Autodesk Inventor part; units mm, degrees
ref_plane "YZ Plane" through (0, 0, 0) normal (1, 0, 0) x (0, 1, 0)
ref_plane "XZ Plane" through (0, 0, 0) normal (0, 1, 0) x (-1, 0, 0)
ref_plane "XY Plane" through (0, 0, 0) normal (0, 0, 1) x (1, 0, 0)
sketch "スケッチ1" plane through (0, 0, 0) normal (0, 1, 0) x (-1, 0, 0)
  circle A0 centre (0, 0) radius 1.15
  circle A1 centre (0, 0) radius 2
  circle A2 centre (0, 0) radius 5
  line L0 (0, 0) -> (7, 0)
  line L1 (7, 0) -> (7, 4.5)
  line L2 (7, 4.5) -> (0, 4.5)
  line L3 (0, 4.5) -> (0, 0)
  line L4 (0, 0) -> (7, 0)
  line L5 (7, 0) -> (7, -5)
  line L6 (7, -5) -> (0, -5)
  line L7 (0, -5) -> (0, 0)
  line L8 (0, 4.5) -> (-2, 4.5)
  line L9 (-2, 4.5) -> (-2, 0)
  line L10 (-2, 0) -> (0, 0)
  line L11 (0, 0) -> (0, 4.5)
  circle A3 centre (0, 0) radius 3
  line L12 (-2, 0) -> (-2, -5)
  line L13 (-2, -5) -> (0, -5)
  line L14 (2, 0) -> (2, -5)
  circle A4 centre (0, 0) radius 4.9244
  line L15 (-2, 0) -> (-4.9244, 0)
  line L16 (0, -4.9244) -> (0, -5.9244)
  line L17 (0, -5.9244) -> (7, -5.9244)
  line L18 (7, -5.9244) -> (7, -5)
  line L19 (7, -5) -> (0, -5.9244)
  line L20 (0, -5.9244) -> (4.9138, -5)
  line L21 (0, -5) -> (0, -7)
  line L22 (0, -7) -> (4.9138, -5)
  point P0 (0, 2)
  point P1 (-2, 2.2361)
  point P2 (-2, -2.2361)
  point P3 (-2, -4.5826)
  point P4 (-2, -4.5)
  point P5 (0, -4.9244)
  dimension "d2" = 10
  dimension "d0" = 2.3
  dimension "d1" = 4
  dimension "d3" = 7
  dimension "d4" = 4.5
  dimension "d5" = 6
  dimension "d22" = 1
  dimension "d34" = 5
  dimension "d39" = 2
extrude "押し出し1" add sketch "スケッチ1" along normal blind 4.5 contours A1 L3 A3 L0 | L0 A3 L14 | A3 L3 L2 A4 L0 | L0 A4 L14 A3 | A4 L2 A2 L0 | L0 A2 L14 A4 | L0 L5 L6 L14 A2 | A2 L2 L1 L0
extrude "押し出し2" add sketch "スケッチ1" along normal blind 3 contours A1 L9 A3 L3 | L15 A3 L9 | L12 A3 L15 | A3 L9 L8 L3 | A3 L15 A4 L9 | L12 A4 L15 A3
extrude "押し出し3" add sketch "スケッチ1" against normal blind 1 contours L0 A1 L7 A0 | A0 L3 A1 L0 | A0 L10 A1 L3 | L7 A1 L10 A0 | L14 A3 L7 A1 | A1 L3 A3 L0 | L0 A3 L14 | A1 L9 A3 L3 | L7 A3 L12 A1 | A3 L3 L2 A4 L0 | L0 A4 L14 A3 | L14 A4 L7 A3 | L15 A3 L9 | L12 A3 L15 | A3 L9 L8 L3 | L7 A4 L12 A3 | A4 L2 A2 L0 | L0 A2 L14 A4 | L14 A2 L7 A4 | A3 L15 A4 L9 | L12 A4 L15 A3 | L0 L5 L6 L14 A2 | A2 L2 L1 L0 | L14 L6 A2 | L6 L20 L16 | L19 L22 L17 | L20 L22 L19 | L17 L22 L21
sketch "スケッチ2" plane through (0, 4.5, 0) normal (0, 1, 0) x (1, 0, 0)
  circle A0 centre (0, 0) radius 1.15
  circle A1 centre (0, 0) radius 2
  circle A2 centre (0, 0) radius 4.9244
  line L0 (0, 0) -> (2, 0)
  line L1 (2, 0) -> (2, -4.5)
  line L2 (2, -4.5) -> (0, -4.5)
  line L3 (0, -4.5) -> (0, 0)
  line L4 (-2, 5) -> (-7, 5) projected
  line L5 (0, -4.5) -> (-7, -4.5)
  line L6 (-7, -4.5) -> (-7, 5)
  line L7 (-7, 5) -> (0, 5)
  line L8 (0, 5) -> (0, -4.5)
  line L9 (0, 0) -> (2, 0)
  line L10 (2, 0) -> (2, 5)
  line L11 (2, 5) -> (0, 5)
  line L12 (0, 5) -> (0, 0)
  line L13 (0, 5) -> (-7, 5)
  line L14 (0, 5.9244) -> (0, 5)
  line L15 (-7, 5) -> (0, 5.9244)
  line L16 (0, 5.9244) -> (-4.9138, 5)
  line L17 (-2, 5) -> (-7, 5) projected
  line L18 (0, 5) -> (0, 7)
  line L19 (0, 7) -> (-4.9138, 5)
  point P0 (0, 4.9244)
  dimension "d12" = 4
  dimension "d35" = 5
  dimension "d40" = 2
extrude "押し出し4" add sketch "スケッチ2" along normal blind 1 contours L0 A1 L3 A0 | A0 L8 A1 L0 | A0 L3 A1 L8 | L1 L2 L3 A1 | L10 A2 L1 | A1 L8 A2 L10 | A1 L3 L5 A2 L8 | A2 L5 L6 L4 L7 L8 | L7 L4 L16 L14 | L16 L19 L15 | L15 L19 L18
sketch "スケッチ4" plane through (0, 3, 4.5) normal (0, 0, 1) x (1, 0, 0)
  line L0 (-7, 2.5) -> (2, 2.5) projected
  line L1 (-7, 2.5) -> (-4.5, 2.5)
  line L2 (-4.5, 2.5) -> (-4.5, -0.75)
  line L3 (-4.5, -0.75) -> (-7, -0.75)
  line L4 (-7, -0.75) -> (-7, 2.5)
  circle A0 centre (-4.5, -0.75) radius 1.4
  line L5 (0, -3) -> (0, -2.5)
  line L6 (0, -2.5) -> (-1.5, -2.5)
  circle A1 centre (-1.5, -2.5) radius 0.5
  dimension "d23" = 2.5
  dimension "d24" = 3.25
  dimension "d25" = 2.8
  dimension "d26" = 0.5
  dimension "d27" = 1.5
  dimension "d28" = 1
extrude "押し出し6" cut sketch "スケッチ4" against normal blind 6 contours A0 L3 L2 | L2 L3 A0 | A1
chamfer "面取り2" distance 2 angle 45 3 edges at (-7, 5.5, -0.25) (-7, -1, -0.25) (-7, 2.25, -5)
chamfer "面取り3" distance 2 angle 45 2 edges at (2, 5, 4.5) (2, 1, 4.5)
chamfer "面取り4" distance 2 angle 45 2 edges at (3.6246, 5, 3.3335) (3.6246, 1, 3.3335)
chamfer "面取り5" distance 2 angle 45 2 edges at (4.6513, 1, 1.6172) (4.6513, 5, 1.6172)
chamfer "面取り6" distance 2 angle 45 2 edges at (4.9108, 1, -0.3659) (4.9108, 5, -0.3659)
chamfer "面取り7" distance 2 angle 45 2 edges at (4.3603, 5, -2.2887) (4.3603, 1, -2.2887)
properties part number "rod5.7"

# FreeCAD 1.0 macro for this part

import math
import FreeCAD as App
import Part
import Sketcher

V = App.Vector


def edges_at(feature, points):
    """Names of the edges that pass closest to the given points."""
    edges = feature.Shape.Edges
    near = lambda p: min(range(len(edges)), key=lambda i: edges[i].distToShape(Part.Vertex(*p))[0])
    return sorted({f"Edge{near(p) + 1}" for p in points})

doc = App.newDocument("Part")
body = doc.addObject("PartDesign::Body", "Body")

sketch1 = body.newObject("Sketcher::SketchObject", "Sketch")
sketch1.AttachmentSupport = (doc.getObject("XZ_Plane"), [""])
sketch1.MapMode = "FlatFace"
sketch1.addGeometry([
    Part.ArcOfCircle(Part.Circle(V(0, 0, 0), V(0, 0, 1), 2), math.radians(90), math.radians(180)),
    Part.LineSegment(V(-2, 0, 0), V(-2, -5, 0)),
    Part.LineSegment(V(-2, -5, 0), V(-7, -5, 0)),
    Part.LineSegment(V(-7, -5, 0), V(-7, 4.5, 0)),
    Part.LineSegment(V(-7, 4.5, 0), V(0, 4.5, 0)),
    Part.LineSegment(V(0, 4.5, 0), V(0, 2, 0)),
], False)
sketch1.addConstraint([
    Sketcher.Constraint("Tangent", 0, 2, 1, 1),
    Sketcher.Constraint("Coincident", 1, 2, 2, 1),
    Sketcher.Constraint("Coincident", 2, 2, 3, 1),
    Sketcher.Constraint("Coincident", 3, 2, 4, 1),
    Sketcher.Constraint("Coincident", 4, 2, 5, 1),
    Sketcher.Constraint("Coincident", 5, 2, 0, 1),
    Sketcher.Constraint("Vertical", 1),
    Sketcher.Constraint("Horizontal", 2),
    Sketcher.Constraint("Vertical", 3),
    Sketcher.Constraint("Horizontal", 4),
    Sketcher.Constraint("Vertical", 5),
    Sketcher.Constraint("Coincident", 0, 3, -1, 1),
    Sketcher.Constraint("PointOnObject", 4, 2, -2),
    Sketcher.Constraint("Equal", 2, 1),
    Sketcher.Constraint("Radius", 0, 2.0),
    Sketcher.Constraint("DistanceX", 2, 2, 2, 1, 5.0),
    Sketcher.Constraint("DistanceY", -1, 1, 3, 2, 4.5),
])
pad1 = body.newObject("PartDesign::Pad", "Pad")
pad1.Profile = sketch1
pad1.Length = 4.5
pad1.Reversed = True

sketch2 = body.newObject("Sketcher::SketchObject", "Sketch001")
sketch2.AttachmentSupport = (doc.getObject("XZ_Plane"), [""])
sketch2.MapMode = "FlatFace"
sketch2.addGeometry([
    Part.ArcOfCircle(Part.Circle(V(0, 0, 0), V(0, 0, 1), 2), math.radians(0), math.radians(90)),
    Part.LineSegment(V(0, 2, 0), V(0, 4.5, 0)),
    Part.LineSegment(V(0, 4.5, 0), V(2, 4.5, 0)),
    Part.ArcOfCircle(Part.Circle(V(0, 0, 0), V(0, 0, 1), 4.9), math.radians(-66), math.radians(66)),
    Part.LineSegment(V(2, -4.5, 0), V(2, 0, 0)),
], False)
sketch2.addConstraint([
    Sketcher.Constraint("Coincident", 0, 2, 1, 1),
    Sketcher.Constraint("Coincident", 1, 2, 2, 1),
    Sketcher.Constraint("Coincident", 2, 2, 3, 2),
    Sketcher.Constraint("Coincident", 3, 1, 4, 1),
    Sketcher.Constraint("Tangent", 4, 2, 0, 1),
    Sketcher.Constraint("Vertical", 1),
    Sketcher.Constraint("Horizontal", 2),
    Sketcher.Constraint("Vertical", 4),
    Sketcher.Constraint("Coincident", 0, 3, -1, 1),
    Sketcher.Constraint("Coincident", 3, 3, -1, 1),
    Sketcher.Constraint("PointOnObject", 0, 2, -2),
    Sketcher.Constraint("Vertical", 2, 2, 3, 1),
    Sketcher.Constraint("Radius", 0, 2.0),
    Sketcher.Constraint("DistanceY", 4, 1, 4, 2, 4.5),
])
pad2 = body.newObject("PartDesign::Pad", "Pad001")
pad2.Profile = sketch2
pad2.Length = 3
pad2.Reversed = True

sketch3 = body.newObject("Sketcher::SketchObject", "Sketch002")
sketch3.AttachmentSupport = (doc.getObject("XZ_Plane"), [""])
sketch3.MapMode = "FlatFace"
sketch3.addGeometry([
    Part.ArcOfCircle(Part.Circle(V(0, 0, 0), V(0, 0, 1), 4.9), math.radians(-90), math.radians(66)),
    Part.LineSegment(V(0, -4.9, 0), V(0, -7, 0)),
    Part.LineSegment(V(0, -7, 0), V(-4.9, -5, 0)),
    Part.LineSegment(V(-4.9, -5, 0), V(-7, -5, 0)),
    Part.LineSegment(V(-7, -5, 0), V(-7, 4.5, 0)),
    Part.LineSegment(V(-7, 4.5, 0), V(2, 4.5, 0)),
    Part.Circle(V(0, 0, 0), V(0, 0, 1), 1.1),
], False)
sketch3.addConstraint([
    Sketcher.Constraint("Coincident", 0, 1, 1, 1),
    Sketcher.Constraint("Coincident", 1, 2, 2, 1),
    Sketcher.Constraint("Coincident", 2, 2, 3, 1),
    Sketcher.Constraint("Coincident", 3, 2, 4, 1),
    Sketcher.Constraint("Coincident", 4, 2, 5, 1),
    Sketcher.Constraint("Coincident", 5, 2, 0, 2),
    Sketcher.Constraint("Vertical", 1),
    Sketcher.Constraint("Horizontal", 3),
    Sketcher.Constraint("Vertical", 4),
    Sketcher.Constraint("Horizontal", 5),
    Sketcher.Constraint("Coincident", 0, 3, -1, 1),
    Sketcher.Constraint("Coincident", 6, 3, -1, 1),
    Sketcher.Constraint("PointOnObject", 0, 1, -2),
    Sketcher.Constraint("Diameter", 6, 2.3),
    Sketcher.Constraint("DistanceY", 1, 2, -1, 1, 7.0),
    Sketcher.Constraint("DistanceY", 2, 2, -1, 1, 5.0),
    Sketcher.Constraint("DistanceX", 3, 2, -1, 1, 7.0),
    Sketcher.Constraint("DistanceX", -1, 1, 5, 2, 2.0),
    Sketcher.Constraint("DistanceY", -1, 1, 4, 2, 4.5),
    Sketcher.Constraint("DistanceX", 3, 2, 3, 1, 2.0862),
])
pad3 = body.newObject("PartDesign::Pad", "Pad002")
pad3.Profile = sketch3
pad3.Length = 1

sketch4 = body.newObject("Sketcher::SketchObject", "Sketch003")
sketch4.AttachmentSupport = (doc.getObject("XZ_Plane"), [""])
sketch4.MapMode = "FlatFace"
sketch4.AttachmentOffset = App.Placement(V(0, 0, -4.5), App.Rotation())
sketch4.addGeometry([
    Part.ArcOfCircle(Part.Circle(V(0, 0, 0), V(0, 0, 1), 4.9), math.radians(-90), math.radians(66)),
    Part.LineSegment(V(0, -4.9, 0), V(0, -7, 0)),
    Part.LineSegment(V(0, -7, 0), V(-4.9, -5, 0)),
    Part.LineSegment(V(-4.9, -5, 0), V(-7, -5, 0)),
    Part.LineSegment(V(-7, -5, 0), V(-7, 4.5, 0)),
    Part.LineSegment(V(-7, 4.5, 0), V(2, 4.5, 0)),
    Part.Circle(V(0, 0, 0), V(0, 0, 1), 1.1),
], False)
sketch4.addConstraint([
    Sketcher.Constraint("Coincident", 0, 1, 1, 1),
    Sketcher.Constraint("Coincident", 1, 2, 2, 1),
    Sketcher.Constraint("Coincident", 2, 2, 3, 1),
    Sketcher.Constraint("Coincident", 3, 2, 4, 1),
    Sketcher.Constraint("Coincident", 4, 2, 5, 1),
    Sketcher.Constraint("Coincident", 5, 2, 0, 2),
    Sketcher.Constraint("Vertical", 1),
    Sketcher.Constraint("Horizontal", 3),
    Sketcher.Constraint("Vertical", 4),
    Sketcher.Constraint("Horizontal", 5),
    Sketcher.Constraint("Coincident", 0, 3, -1, 1),
    Sketcher.Constraint("Coincident", 6, 3, -1, 1),
    Sketcher.Constraint("PointOnObject", 0, 1, -2),
    Sketcher.Constraint("DistanceY", 2, 2, -1, 1, 5.0),
    Sketcher.Constraint("DistanceX", -1, 1, 5, 2, 2.0),
    Sketcher.Constraint("DistanceY", 1, 2, 2, 2, 2.0),
    Sketcher.Constraint("Diameter", 6, 2.3),
    Sketcher.Constraint("DistanceX", 5, 1, 5, 2, 9.0),
    Sketcher.Constraint("DistanceY", 4, 1, 4, 2, 9.5),
    Sketcher.Constraint("DistanceX", 3, 2, 3, 1, 2.0862),
])
pad4 = body.newObject("PartDesign::Pad", "Pad003")
pad4.Profile = sketch4
pad4.Length = 1
pad4.Reversed = True

sketch5 = body.newObject("Sketcher::SketchObject", "Sketch004")
sketch5.AttachmentSupport = (doc.getObject("XY_Plane"), [""])
sketch5.MapMode = "FlatFace"
sketch5.AttachmentOffset = App.Placement(V(0, 0, 4.5), App.Rotation())
sketch5.addGeometry([
    Part.Circle(V(-4.5, 2.2, 0), V(0, 0, 1), 1.4),
    Part.Circle(V(-1.5, 0.5, 0), V(0, 0, 1), 0.5),
], False)
sketch5.addConstraint([
    Sketcher.Constraint("Diameter", 1, 1.0),
    Sketcher.Constraint("Diameter", 0, 2.8),
    Sketcher.Constraint("DistanceX", 1, 3, -1, 1, 1.5),
    Sketcher.Constraint("DistanceY", -1, 1, 1, 3, 0.5),
    Sketcher.Constraint("DistanceX", 0, 3, 1, 3, 3.0),
    Sketcher.Constraint("DistanceY", -1, 1, 0, 3, 2.25),
])
pocket1 = body.newObject("PartDesign::Pocket", "Pocket")
pocket1.Profile = sketch5
pocket1.Length = 6
doc.recompute()

chamfer = body.newObject("PartDesign::Chamfer", "Chamfer")
chamfer.Base = (pocket1, edges_at(pocket1, [(-7, 5.5, -0.25), (-7, -1, -0.25), (-7, 2.25, -5)]))
chamfer.Size = 2
doc.recompute()

chamfer2 = body.newObject("PartDesign::Chamfer", "Chamfer001")
chamfer2.Base = (chamfer, edges_at(chamfer, [(2, 5, 4.5), (2, 1, 4.5)]))
chamfer2.Size = 2
doc.recompute()

chamfer3 = body.newObject("PartDesign::Chamfer", "Chamfer002")
chamfer3.Base = (chamfer2, edges_at(chamfer2, [(3.625, 5, 3.333), (3.625, 1, 3.333)]))
chamfer3.Size = 2
doc.recompute()

chamfer4 = body.newObject("PartDesign::Chamfer", "Chamfer003")
chamfer4.Base = (chamfer3, edges_at(chamfer3, [(4.651, 1, 1.617), (4.651, 5, 1.617)]))
chamfer4.Size = 2
doc.recompute()

chamfer5 = body.newObject("PartDesign::Chamfer", "Chamfer004")
chamfer5.Base = (chamfer4, edges_at(chamfer4, [(4.911, 1, -0.366), (4.911, 5, -0.366)]))
chamfer5.Size = 2
doc.recompute()

chamfer6 = body.newObject("PartDesign::Chamfer", "Chamfer005")
chamfer6.Base = (chamfer5, edges_at(chamfer5, [(4.36, 5, -2.289), (4.36, 1, -2.289)]))
chamfer6.Size = 2

doc.recompute()
